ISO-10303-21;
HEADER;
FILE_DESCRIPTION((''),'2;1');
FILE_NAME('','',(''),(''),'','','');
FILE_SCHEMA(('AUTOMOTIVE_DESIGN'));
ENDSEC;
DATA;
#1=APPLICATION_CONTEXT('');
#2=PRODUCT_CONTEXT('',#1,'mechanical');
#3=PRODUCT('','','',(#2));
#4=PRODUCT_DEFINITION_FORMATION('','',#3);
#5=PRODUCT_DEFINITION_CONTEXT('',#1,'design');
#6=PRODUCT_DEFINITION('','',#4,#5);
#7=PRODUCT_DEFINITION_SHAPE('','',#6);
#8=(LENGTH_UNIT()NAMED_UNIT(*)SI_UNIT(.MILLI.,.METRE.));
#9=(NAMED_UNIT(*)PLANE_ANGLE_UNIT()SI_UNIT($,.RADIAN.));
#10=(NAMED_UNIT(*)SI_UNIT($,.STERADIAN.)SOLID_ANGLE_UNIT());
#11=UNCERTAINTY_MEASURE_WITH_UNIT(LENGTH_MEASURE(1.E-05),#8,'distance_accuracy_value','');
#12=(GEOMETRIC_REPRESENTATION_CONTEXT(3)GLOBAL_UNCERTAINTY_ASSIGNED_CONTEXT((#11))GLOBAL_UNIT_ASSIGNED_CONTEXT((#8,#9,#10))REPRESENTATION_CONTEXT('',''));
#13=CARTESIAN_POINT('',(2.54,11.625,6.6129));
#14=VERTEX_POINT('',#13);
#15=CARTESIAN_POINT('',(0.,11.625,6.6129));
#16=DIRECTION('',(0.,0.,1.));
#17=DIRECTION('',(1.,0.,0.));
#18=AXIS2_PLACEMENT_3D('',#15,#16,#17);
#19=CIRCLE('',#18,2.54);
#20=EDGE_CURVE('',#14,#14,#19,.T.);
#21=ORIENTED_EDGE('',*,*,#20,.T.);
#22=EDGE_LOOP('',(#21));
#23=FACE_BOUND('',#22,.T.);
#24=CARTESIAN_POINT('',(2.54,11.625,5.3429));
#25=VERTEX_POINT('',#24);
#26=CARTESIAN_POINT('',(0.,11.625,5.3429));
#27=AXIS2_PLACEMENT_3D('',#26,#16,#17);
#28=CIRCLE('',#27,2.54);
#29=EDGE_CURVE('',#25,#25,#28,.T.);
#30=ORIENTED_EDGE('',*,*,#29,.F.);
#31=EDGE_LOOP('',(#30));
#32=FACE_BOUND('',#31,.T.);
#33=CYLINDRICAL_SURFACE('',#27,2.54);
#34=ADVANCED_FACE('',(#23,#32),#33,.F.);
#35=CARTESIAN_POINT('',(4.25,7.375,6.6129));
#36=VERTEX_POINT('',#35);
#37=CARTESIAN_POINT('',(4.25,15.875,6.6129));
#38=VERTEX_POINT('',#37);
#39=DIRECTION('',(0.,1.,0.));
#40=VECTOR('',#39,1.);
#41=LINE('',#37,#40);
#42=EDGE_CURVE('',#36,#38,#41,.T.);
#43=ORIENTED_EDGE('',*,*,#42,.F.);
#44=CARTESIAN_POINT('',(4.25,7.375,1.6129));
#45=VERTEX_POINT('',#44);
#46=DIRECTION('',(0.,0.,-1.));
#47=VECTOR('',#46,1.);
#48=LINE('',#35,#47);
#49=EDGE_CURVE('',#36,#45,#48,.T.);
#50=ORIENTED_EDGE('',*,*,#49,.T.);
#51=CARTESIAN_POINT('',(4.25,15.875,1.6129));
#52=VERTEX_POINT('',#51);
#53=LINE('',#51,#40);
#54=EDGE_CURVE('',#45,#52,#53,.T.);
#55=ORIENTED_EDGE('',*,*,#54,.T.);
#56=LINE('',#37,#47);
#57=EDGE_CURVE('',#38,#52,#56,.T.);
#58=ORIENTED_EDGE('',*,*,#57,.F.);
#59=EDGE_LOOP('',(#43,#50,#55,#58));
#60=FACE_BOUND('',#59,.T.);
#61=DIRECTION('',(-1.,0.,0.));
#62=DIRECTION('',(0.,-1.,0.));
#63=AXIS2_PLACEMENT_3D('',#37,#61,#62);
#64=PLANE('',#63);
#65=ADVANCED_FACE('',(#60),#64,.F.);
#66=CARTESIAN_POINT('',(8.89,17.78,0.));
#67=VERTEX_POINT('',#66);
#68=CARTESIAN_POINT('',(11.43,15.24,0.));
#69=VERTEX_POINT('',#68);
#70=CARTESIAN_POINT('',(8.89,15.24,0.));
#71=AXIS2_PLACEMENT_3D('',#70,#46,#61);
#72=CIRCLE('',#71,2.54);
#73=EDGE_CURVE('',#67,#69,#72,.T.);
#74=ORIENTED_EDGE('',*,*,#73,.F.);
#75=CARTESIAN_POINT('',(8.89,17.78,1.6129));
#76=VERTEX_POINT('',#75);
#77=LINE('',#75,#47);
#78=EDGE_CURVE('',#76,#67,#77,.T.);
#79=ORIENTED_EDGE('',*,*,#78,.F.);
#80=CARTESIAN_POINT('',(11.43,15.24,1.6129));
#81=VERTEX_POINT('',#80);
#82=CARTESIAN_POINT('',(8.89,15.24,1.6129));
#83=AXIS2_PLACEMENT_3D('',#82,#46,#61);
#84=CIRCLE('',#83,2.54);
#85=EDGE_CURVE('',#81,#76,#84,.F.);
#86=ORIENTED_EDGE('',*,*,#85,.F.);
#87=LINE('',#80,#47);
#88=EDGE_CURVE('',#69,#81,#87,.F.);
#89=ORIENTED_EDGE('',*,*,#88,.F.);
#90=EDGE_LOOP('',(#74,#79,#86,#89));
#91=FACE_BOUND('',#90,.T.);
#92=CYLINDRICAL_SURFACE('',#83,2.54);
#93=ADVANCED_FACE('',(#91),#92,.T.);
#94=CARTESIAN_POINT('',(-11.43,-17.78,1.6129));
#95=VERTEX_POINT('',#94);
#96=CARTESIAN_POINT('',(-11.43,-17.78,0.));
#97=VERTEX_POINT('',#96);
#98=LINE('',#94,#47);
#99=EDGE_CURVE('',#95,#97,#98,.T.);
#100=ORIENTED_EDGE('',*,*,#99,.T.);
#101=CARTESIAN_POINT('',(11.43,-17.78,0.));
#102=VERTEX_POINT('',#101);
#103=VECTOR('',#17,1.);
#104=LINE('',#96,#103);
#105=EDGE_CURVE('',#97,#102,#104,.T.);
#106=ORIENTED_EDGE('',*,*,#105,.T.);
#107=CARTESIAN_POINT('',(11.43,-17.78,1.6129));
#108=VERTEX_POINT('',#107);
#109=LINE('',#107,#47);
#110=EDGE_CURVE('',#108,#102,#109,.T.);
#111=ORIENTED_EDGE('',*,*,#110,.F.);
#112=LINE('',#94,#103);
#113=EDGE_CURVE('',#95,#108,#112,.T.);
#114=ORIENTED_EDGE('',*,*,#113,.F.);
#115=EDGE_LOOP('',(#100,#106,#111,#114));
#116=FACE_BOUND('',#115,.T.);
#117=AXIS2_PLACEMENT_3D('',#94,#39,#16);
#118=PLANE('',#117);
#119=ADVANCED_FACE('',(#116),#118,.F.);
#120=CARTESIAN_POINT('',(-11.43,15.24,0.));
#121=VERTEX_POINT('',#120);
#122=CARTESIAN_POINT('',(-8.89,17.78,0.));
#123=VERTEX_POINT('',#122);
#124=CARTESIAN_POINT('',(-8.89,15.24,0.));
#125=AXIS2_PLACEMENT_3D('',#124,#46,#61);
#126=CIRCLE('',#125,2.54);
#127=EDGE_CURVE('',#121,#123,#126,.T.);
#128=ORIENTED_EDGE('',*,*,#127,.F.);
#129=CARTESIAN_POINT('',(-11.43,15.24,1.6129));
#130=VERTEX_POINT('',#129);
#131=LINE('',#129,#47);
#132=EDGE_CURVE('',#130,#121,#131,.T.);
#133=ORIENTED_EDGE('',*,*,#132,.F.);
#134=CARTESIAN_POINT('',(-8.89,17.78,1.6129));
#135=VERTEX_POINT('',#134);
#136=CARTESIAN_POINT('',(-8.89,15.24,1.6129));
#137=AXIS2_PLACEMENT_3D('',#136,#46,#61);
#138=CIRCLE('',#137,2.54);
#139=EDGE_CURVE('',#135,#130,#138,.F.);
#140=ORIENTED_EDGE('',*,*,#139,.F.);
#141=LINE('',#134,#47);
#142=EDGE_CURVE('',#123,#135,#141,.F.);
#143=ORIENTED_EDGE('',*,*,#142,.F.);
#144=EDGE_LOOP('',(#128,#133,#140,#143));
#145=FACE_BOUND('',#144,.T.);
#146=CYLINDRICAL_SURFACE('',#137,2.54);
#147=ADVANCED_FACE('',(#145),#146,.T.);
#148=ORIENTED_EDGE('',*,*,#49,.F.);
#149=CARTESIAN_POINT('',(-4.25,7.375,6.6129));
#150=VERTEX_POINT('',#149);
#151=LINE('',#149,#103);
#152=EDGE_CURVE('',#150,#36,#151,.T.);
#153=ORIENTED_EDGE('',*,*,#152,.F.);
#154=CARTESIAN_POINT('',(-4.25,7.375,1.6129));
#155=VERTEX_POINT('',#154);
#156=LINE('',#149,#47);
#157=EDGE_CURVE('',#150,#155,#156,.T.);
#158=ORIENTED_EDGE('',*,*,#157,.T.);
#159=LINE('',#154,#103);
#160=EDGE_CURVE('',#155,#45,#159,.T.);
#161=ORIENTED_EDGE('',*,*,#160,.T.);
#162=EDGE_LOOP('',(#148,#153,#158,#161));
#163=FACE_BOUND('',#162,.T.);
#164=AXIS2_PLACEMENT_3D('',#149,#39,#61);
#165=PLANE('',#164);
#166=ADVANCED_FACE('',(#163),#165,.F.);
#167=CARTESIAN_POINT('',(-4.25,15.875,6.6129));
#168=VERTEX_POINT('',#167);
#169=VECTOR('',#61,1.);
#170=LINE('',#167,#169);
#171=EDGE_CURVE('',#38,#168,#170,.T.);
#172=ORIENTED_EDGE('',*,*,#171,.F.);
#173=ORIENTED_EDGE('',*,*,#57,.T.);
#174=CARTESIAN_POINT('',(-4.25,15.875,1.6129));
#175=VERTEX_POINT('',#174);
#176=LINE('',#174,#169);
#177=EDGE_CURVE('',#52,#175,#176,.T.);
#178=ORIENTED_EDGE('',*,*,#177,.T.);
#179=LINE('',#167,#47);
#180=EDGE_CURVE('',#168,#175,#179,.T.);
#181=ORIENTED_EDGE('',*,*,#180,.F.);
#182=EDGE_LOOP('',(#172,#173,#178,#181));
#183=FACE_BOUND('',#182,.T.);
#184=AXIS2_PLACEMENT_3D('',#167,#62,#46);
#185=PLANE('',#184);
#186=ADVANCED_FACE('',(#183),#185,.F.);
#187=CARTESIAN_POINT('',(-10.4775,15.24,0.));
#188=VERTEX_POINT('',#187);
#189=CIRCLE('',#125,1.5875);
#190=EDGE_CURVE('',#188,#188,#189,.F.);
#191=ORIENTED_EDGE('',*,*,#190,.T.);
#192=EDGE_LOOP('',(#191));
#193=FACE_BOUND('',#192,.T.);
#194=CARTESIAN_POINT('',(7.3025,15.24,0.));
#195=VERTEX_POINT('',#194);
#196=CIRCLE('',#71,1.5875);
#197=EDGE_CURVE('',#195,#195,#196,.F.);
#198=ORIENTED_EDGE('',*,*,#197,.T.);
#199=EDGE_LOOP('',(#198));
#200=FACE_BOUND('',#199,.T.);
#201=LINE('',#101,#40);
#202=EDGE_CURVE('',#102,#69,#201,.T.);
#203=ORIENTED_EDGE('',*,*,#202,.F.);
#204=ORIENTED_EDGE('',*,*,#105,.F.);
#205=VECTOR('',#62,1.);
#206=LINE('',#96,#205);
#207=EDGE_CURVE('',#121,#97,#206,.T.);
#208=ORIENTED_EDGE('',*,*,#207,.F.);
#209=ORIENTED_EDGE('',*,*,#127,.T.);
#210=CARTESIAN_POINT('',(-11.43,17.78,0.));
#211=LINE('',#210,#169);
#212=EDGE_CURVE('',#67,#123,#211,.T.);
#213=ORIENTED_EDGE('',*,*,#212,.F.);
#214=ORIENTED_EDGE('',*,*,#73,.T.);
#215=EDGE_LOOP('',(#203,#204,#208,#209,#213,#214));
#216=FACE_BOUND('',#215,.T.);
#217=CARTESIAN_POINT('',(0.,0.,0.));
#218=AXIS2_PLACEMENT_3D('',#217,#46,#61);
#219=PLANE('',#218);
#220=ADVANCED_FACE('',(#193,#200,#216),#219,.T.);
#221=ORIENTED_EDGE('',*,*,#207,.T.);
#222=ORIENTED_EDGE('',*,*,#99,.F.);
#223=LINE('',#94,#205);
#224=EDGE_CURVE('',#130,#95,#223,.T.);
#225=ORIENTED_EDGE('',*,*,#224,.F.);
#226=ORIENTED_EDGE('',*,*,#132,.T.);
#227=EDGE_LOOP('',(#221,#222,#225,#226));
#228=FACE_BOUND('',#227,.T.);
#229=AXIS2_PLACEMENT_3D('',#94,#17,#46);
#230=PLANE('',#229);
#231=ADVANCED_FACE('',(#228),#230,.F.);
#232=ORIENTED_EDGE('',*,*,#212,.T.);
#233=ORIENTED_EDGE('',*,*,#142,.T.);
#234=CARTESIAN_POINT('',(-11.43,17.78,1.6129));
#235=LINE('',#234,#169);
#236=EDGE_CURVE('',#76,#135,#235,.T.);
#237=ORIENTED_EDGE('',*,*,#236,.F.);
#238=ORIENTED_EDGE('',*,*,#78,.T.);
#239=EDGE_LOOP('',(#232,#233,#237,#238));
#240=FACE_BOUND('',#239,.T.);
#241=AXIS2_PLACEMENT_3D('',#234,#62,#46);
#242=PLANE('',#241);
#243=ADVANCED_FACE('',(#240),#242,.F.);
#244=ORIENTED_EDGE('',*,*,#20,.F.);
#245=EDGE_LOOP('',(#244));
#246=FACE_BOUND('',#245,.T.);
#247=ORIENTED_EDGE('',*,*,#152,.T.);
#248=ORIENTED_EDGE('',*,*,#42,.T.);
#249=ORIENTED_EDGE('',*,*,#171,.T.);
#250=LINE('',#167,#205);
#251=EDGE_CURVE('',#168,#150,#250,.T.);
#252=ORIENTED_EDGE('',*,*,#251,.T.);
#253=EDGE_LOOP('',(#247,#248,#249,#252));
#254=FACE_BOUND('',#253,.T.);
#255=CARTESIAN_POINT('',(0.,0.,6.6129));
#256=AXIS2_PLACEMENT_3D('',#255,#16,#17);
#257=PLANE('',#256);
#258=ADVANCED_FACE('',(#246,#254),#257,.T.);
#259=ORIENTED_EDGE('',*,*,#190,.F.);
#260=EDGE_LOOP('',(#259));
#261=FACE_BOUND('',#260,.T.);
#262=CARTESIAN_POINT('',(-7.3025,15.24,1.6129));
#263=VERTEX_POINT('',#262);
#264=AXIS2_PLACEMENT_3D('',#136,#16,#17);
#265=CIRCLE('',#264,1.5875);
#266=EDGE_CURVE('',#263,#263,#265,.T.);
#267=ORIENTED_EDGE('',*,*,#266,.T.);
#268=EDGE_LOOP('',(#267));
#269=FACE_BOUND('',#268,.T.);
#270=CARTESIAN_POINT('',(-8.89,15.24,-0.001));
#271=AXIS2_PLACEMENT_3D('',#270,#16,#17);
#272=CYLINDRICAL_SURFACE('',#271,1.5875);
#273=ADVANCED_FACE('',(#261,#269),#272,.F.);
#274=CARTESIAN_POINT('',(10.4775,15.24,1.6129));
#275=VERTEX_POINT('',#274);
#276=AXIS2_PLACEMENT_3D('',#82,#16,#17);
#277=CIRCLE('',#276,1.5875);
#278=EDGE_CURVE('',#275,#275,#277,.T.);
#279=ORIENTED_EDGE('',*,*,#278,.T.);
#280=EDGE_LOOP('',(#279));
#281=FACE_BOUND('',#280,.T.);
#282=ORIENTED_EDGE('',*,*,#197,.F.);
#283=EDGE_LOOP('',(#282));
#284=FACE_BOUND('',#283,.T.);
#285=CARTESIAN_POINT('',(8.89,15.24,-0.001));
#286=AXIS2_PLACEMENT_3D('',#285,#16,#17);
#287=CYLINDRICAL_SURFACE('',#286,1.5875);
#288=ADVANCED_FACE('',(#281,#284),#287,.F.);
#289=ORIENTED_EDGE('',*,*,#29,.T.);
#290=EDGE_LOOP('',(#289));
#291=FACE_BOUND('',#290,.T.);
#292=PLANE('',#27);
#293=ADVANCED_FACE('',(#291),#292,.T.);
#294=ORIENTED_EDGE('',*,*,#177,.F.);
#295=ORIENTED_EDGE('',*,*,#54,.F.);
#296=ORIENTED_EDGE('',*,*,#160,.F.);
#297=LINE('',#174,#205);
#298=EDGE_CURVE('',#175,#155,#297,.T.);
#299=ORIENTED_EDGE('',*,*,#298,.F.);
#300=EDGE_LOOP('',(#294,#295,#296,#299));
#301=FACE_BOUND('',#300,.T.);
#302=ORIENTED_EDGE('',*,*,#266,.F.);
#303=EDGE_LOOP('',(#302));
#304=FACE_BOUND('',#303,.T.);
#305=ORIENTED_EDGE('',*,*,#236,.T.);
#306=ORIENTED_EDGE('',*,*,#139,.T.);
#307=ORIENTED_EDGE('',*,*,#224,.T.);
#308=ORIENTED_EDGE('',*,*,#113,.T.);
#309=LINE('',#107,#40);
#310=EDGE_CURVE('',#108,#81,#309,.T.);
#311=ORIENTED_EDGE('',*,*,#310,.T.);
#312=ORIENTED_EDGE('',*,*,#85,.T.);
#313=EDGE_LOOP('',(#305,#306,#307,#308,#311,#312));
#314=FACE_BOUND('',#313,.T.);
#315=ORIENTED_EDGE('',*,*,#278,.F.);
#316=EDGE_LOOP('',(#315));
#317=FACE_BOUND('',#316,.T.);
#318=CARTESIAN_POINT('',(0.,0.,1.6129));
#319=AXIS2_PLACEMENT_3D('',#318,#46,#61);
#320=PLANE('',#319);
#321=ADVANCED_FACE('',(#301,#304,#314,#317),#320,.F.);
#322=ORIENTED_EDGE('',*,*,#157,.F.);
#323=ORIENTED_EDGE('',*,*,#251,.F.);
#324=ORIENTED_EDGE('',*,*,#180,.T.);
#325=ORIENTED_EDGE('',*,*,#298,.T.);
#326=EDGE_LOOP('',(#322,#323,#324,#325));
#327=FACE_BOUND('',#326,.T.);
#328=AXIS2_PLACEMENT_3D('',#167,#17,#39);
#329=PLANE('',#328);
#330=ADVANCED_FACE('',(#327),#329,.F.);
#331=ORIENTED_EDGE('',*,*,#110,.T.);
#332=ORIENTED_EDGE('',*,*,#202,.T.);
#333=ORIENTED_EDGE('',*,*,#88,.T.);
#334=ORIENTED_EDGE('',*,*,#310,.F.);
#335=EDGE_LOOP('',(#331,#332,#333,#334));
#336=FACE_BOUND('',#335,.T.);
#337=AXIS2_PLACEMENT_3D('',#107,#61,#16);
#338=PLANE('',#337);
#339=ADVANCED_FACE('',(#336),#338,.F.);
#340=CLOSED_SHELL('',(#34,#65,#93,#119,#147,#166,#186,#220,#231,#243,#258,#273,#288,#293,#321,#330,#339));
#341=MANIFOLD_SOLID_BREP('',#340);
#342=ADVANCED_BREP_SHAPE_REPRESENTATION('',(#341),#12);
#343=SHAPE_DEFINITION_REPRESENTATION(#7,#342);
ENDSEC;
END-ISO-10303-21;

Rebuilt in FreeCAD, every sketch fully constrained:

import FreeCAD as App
import Part
import Sketcher

V = App.Vector
Q = App.Units.Quantity


def edges_at(feature, points):
    """Names of the edges that pass closest to the given points."""
    edges = feature.Shape.Edges
    near = lambda p: min(range(len(edges)), key=lambda i: edges[i].distToShape(Part.Vertex(*p))[0])
    return sorted({f"Edge{near(p) + 1}" for p in points})

doc = App.newDocument("Part")
body = doc.addObject("PartDesign::Body", "Body")

# Sketch on XY plane
sketch1 = doc.addObject("Sketcher::SketchObject", "Sketch")
body.addObject(sketch1)
sketch1.AttachmentSupport = (doc.XY_Plane, [""])
sketch1.MapMode = "FlatFace"
sketch1.addGeometry([
    Part.LineSegment(V(-11, 18, 0), V(-11, -18, 0)),
    Part.LineSegment(V(-11, -18, 0), V(11, -18, 0)),
    Part.LineSegment(V(11, -18, 0), V(11, 18, 0)),
    Part.LineSegment(V(11, 18, 0), V(-11, 18, 0)),
], False)
sketch1.addConstraint([
    Sketcher.Constraint("Coincident", 0, 2, 1, 1),
    Sketcher.Constraint("Coincident", 1, 2, 2, 1),
    Sketcher.Constraint("Coincident", 2, 2, 3, 1),
    Sketcher.Constraint("Coincident", 3, 2, 0, 1),
    Sketcher.Constraint("Vertical", 0),
    Sketcher.Constraint("Horizontal", 1),
    Sketcher.Constraint("Vertical", 2),
    Sketcher.Constraint("Horizontal", 3),
    Sketcher.Constraint("Symmetric", 0, 2, 2, 2, -1, 1),
    Sketcher.Constraint("DistanceX", 1, 1, 1, 2, Q("0.9 in")),
    Sketcher.Constraint("DistanceY", 0, 2, 0, 1, Q("1.4 in")),
])
pad1 = doc.addObject("PartDesign::Pad", "Pad")
body.addObject(pad1)
pad1.Profile = sketch1
pad1.Length = Q("0.0635 in")
doc.recompute()

fillet = doc.addObject("PartDesign::Fillet", "Fillet")
body.addObject(fillet)
fillet.Base = (pad1, edges_at(pad1, [(-11.43, 17.78, 0.806), (11.43, 17.78, 0.806)]))
fillet.Radius = Q("0.1 in")

# Sketch on XY plane
sketch2 = doc.addObject("Sketcher::SketchObject", "Sketch001")
body.addObject(sketch2)
sketch2.AttachmentSupport = (doc.XY_Plane, [""])
sketch2.MapMode = "FlatFace"
sketch2.AttachmentOffset = App.Placement(V(0, 0, 0.0635 * 25.4), App.Rotation())
sketch2.addGeometry([
    Part.LineSegment(V(-4, 16, 0), V(-4, 7, 0)),
    Part.LineSegment(V(-4, 7, 0), V(4, 7, 0)),
    Part.LineSegment(V(4, 7, 0), V(4, 16, 0)),
    Part.LineSegment(V(4, 16, 0), V(-4, 16, 0)),
], False)
sketch2.addConstraint([
    Sketcher.Constraint("Coincident", 0, 2, 1, 1),
    Sketcher.Constraint("Coincident", 1, 2, 2, 1),
    Sketcher.Constraint("Coincident", 2, 2, 3, 1),
    Sketcher.Constraint("Coincident", 3, 2, 0, 1),
    Sketcher.Constraint("Vertical", 0),
    Sketcher.Constraint("Horizontal", 1),
    Sketcher.Constraint("Vertical", 2),
    Sketcher.Constraint("Horizontal", 3),
    Sketcher.Constraint("Equal", 3, 0),
    Sketcher.Constraint("DistanceY", -1, 1, 2, 2, Q("0.625 in")),
    Sketcher.Constraint("DistanceX", 1, 1, 1, 2, Q("8.5 mm")),
    Sketcher.Constraint("DistanceX", 0, 2, -1, 1, Q("4.25 mm")),
])
pad2 = doc.addObject("PartDesign::Pad", "Pad001")
body.addObject(pad2)
pad2.Profile = sketch2
pad2.Length = 5

# Sketch on XY plane
sketch3 = doc.addObject("Sketcher::SketchObject", "Sketch002")
body.addObject(sketch3)
sketch3.AttachmentSupport = (doc.XY_Plane, [""])
sketch3.MapMode = "FlatFace"
sketch3.AttachmentOffset = App.Placement(V(0, 0, 0.0635 * 25.4), App.Rotation())
sketch3.addGeometry(Part.Circle(V(-8.9, 15.2, 0), V(0, 0, 1), 1.6), False)
sketch3.addConstraint([
    Sketcher.Constraint("Diameter", 0, Q("0.125 in")),
    Sketcher.Constraint("DistanceY", -1, 1, 0, 3, Q("0.6 in")),
    Sketcher.Constraint("DistanceX", 0, 3, -1, 1, Q("0.35 in")),
])
pocket1 = doc.addObject("PartDesign::Pocket", "Pocket")
body.addObject(pocket1)
pocket1.Profile = sketch3
pocket1.Type = "UpToFirst"

# Sketch on XY plane
sketch4 = doc.addObject("Sketcher::SketchObject", "Sketch003")
body.addObject(sketch4)
sketch4.AttachmentSupport = (doc.XY_Plane, [""])
sketch4.MapMode = "FlatFace"
sketch4.AttachmentOffset = App.Placement(V(0, 0, 0.0635 * 25.4), App.Rotation())
sketch4.addGeometry(Part.Circle(V(8.9, 15.2, 0), V(0, 0, 1), 1.6), False)
sketch4.addConstraint([
    Sketcher.Constraint("Diameter", 0, Q("0.125 in")),
    Sketcher.Constraint("DistanceY", -1, 1, 0, 3, Q("0.6 in")),
    Sketcher.Constraint("DistanceX", -1, 1, 0, 3, Q("0.35 in")),
])
pocket2 = doc.addObject("PartDesign::Pocket", "Pocket001")
body.addObject(pocket2)
pocket2.Profile = sketch4
pocket2.Type = "UpToFirst"

# Sketch on XY plane
sketch5 = doc.addObject("Sketcher::SketchObject", "Sketch004")
body.addObject(sketch5)
sketch5.AttachmentSupport = (doc.XY_Plane, [""])
sketch5.MapMode = "FlatFace"
sketch5.AttachmentOffset = App.Placement(V(0, 0, 6.6129), App.Rotation())
sketch5.addGeometry(Part.Circle(V(0, 11.6, 0), V(0, 0, 1), 2.5), False)
sketch5.addConstraint([
    Sketcher.Constraint("PointOnObject", 0, 3, -2),
    Sketcher.Constraint("Diameter", 0, Q("0.2 in")),
    Sketcher.Constraint("DistanceY", -1, 1, 0, 3, Q("11.625 mm")),
])
pocket3 = doc.addObject("PartDesign::Pocket", "Pocket002")
body.addObject(pocket3)
pocket3.Profile = sketch5
pocket3.Length = Q("0.05 in")

doc.recompute()
